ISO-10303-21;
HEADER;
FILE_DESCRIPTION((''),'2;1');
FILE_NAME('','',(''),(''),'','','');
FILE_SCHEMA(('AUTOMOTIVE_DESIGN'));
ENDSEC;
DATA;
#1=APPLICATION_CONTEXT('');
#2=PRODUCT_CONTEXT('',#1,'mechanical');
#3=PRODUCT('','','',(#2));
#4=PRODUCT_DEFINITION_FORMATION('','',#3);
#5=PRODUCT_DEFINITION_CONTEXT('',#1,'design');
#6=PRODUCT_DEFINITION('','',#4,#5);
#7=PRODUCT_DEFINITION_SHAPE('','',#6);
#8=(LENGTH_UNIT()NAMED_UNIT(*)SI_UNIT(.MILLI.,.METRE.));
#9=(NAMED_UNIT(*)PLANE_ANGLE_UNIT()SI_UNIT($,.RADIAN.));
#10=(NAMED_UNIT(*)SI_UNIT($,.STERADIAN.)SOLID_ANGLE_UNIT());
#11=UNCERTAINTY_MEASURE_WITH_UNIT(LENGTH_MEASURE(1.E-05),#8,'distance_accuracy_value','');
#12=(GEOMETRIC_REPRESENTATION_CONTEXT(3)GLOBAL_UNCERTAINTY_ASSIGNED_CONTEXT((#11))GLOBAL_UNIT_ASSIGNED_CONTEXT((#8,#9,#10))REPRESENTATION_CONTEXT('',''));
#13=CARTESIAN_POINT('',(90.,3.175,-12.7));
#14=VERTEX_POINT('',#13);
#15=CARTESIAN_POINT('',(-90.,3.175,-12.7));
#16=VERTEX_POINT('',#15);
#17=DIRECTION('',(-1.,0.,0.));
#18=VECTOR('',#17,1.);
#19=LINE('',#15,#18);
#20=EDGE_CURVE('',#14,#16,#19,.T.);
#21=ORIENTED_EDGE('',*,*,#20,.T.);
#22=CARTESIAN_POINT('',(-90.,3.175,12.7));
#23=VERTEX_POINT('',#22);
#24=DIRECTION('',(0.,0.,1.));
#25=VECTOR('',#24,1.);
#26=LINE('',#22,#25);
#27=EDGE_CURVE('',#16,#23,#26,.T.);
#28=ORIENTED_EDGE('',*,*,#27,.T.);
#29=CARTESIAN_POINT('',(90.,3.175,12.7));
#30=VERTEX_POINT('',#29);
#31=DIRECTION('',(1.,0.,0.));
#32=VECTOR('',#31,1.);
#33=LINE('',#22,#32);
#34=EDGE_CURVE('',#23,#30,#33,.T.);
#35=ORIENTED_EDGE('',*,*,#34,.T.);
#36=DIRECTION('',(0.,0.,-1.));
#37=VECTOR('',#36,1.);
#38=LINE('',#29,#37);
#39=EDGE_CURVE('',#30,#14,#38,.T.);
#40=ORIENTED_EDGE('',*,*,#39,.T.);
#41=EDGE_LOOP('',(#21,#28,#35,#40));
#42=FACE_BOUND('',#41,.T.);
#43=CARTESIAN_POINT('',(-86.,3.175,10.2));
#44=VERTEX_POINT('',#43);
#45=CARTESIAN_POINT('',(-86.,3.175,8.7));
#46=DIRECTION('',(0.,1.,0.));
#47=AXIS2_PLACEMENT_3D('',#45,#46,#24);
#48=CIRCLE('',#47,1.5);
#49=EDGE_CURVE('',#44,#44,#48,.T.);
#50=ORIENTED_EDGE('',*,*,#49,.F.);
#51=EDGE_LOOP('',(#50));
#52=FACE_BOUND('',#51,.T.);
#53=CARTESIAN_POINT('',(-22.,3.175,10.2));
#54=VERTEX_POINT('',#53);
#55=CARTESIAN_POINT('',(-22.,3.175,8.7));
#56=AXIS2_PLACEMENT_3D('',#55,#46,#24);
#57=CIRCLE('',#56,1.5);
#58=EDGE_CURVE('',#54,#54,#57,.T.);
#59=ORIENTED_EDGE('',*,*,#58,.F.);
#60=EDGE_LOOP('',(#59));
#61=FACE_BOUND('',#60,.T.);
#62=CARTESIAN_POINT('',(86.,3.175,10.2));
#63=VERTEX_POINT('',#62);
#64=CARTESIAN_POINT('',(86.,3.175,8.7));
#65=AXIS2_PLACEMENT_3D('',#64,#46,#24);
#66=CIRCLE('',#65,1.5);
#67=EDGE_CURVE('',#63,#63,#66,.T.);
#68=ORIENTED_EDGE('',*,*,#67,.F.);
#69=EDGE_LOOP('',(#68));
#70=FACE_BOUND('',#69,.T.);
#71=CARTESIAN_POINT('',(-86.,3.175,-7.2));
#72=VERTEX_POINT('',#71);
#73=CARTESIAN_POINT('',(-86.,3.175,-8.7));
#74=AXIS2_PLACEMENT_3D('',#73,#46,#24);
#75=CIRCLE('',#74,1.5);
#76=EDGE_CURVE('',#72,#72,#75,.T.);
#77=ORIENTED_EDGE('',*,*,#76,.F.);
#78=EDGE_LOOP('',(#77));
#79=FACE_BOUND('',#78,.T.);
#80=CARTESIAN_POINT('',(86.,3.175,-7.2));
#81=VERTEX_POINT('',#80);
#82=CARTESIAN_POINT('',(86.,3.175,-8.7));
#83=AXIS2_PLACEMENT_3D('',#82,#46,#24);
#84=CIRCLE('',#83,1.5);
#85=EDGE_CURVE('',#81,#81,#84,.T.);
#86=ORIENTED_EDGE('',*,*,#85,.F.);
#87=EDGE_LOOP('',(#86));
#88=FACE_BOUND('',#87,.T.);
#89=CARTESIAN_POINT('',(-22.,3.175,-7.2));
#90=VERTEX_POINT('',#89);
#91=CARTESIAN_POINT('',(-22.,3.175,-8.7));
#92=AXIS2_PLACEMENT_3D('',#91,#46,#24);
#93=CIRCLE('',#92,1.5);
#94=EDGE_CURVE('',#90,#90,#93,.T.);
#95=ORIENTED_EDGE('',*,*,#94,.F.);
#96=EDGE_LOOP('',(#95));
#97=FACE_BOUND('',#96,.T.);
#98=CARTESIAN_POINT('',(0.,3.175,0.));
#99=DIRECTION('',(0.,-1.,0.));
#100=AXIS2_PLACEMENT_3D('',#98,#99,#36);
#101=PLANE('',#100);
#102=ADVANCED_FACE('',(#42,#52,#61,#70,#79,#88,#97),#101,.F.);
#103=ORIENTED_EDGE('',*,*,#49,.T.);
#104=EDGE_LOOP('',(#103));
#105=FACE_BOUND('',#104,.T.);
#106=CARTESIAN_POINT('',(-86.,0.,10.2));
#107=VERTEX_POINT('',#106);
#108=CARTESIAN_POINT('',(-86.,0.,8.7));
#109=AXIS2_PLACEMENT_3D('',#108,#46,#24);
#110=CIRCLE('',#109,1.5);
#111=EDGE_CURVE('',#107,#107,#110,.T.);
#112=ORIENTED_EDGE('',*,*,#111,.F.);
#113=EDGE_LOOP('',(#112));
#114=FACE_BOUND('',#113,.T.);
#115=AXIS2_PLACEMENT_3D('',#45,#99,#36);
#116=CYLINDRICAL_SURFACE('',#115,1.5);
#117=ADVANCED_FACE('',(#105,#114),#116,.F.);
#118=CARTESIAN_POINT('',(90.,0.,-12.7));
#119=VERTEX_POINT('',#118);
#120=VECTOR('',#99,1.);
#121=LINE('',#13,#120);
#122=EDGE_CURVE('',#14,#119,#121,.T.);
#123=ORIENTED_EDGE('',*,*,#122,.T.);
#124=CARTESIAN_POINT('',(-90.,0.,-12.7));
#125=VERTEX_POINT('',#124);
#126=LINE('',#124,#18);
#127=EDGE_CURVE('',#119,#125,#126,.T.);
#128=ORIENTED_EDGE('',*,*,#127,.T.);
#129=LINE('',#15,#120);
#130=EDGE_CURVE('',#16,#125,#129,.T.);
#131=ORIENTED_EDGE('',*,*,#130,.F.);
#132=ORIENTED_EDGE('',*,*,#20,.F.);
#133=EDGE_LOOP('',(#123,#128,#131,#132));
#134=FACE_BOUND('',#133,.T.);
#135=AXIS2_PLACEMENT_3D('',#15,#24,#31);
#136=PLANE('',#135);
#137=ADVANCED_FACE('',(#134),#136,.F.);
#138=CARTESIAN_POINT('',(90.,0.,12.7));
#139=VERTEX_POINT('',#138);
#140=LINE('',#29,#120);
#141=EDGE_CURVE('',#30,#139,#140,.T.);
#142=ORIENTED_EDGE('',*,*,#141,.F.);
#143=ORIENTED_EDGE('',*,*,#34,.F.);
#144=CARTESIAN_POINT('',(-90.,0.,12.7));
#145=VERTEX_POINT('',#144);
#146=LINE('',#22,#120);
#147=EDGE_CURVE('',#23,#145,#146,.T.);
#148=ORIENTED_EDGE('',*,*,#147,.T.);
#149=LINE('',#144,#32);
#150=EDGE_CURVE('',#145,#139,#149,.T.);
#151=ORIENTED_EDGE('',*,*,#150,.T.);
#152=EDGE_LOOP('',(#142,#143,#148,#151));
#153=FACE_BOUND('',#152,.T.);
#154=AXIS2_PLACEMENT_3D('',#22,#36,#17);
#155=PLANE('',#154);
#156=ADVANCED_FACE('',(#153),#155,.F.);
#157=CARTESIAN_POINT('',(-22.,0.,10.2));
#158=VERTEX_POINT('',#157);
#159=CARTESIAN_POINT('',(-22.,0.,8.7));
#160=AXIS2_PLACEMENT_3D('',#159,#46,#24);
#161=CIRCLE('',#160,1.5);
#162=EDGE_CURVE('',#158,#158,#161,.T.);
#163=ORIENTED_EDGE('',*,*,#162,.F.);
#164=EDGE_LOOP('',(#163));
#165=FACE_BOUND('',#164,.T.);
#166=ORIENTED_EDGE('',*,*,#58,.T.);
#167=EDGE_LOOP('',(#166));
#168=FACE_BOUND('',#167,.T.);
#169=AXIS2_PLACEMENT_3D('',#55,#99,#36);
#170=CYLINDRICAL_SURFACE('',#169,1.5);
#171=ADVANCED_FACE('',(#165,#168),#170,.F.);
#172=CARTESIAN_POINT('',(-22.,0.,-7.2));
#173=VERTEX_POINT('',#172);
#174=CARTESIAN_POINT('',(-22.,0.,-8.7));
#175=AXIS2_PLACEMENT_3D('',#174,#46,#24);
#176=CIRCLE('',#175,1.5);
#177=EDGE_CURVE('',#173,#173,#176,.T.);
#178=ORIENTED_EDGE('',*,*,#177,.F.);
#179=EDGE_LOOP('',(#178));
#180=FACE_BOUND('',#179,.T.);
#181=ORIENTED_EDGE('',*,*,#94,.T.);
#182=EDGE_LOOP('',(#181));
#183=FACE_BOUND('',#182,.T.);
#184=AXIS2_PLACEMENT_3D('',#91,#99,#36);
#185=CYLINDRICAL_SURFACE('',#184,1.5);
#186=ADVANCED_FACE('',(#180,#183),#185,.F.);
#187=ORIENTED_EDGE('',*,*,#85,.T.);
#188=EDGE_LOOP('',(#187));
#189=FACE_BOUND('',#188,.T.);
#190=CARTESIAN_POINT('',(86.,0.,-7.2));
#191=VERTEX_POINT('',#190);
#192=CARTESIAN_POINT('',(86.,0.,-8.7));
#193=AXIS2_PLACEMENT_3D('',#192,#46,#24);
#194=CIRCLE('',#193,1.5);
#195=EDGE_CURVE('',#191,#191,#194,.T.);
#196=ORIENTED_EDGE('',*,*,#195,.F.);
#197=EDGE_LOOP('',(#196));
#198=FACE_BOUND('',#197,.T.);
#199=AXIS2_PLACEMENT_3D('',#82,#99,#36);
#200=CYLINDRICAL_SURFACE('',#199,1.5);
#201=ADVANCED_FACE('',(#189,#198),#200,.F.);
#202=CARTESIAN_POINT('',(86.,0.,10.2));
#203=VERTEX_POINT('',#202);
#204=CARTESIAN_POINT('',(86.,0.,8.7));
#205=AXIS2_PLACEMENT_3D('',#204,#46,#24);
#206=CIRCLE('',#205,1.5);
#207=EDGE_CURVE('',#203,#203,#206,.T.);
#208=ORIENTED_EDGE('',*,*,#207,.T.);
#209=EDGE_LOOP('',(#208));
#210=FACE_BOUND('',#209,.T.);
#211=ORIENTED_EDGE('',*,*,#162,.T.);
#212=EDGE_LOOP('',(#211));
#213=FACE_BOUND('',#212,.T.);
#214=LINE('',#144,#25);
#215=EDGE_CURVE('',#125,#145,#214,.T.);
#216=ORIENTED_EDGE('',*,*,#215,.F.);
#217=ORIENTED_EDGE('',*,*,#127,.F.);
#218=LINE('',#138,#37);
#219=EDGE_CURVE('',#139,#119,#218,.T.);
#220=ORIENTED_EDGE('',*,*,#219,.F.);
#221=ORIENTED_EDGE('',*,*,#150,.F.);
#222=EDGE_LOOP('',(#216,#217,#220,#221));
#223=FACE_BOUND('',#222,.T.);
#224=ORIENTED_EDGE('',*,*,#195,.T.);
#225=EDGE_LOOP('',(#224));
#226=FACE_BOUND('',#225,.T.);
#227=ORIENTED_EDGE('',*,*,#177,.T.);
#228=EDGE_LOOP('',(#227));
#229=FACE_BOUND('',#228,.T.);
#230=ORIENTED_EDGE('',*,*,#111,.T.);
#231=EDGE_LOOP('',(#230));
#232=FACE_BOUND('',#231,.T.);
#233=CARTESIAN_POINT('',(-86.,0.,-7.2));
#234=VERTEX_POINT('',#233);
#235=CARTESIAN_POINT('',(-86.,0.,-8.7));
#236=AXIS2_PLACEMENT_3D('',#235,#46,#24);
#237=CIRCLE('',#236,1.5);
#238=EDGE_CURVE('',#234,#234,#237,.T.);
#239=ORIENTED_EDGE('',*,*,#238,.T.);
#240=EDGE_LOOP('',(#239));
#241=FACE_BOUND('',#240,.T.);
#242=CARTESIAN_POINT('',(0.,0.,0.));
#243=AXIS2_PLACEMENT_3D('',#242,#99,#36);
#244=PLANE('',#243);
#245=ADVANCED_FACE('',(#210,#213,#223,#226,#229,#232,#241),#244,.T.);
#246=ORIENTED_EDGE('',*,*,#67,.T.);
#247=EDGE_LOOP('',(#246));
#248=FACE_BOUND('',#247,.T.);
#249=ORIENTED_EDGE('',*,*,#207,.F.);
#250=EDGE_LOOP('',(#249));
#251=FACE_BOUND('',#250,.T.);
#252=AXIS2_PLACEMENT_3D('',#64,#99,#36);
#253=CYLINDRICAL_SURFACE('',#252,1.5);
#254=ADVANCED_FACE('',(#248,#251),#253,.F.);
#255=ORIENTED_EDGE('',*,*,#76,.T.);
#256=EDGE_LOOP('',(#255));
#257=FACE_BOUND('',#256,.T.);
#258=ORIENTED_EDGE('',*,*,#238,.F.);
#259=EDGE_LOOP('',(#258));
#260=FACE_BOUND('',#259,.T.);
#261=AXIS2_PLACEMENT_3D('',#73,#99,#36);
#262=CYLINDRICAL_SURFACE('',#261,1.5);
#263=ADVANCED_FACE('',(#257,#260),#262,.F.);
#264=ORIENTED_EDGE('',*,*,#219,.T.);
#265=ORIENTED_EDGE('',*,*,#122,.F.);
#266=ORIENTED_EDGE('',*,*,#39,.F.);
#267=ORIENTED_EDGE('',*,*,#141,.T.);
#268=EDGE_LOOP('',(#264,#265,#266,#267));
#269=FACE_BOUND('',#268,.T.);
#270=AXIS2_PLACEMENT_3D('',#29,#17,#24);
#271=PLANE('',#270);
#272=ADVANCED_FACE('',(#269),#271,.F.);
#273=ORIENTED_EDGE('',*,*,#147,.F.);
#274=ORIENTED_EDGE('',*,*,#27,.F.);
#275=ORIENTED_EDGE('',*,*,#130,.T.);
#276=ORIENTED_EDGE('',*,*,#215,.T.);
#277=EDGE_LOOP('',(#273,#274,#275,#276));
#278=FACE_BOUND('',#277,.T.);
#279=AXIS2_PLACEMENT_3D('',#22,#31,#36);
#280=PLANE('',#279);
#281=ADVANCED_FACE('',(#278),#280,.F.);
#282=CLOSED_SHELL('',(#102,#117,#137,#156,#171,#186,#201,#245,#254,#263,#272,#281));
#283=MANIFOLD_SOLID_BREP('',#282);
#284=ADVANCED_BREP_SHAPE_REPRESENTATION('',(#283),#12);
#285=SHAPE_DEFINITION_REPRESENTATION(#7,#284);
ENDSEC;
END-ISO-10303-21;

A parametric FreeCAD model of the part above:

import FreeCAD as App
import Part
import Sketcher

V = App.Vector
Q = App.Units.Quantity

doc = App.newDocument("Part")
params = doc.addObject("Spreadsheet::Sheet", "Params")
for row, (alias, value) in enumerate([
    ("sketch1_diameter", "3 mm"),
    ("sketch1_width", "180 mm"),
    ("sketch1_height", "25.4 mm"),
    ("pad1_length", "3.175 mm"),
], start=1):
    params.set(f"A{row}", alias)
    params.set(f"B{row}", "=" + value)
    params.setAlias(f"B{row}", alias)

body = doc.addObject("PartDesign::Body", "Body")

sketch1 = body.newObject("Sketcher::SketchObject", "Sketch")
sketch1.AttachmentSupport = (doc.getObject("XZ_Plane"), [""])
sketch1.MapMode = "FlatFace"
sketch1.addGeometry(Part.LineSegment(V(-90, -12.7, 0), V(-90, 12.7, 0)), False)
sketch1.addGeometry(Part.LineSegment(V(-90, 12.7, 0), V(90, 12.7, 0)), False)
sketch1.addGeometry(Part.LineSegment(V(90, 12.7, 0), V(90, -12.7, 0)), False)
sketch1.addGeometry(Part.LineSegment(V(90, -12.7, 0), V(-90, -12.7, 0)), False)
sketch1.addGeometry(Part.Circle(V(-86, 8.7, 0), V(0, 0, 1), 1.5), False)
sketch1.addGeometry(Part.Circle(V(-22, 8.7, 0), V(0, 0, 1), 1.5), False)
sketch1.addGeometry(Part.Circle(V(86, 8.7, 0), V(0, 0, 1), 1.5), False)
sketch1.addGeometry(Part.Circle(V(-86, -8.7, 0), V(0, 0, 1), 1.5), False)
sketch1.addGeometry(Part.Circle(V(-22, -8.7, 0), V(0, 0, 1), 1.5), False)
sketch1.addGeometry(Part.Circle(V(86, -8.7, 0), V(0, 0, 1), 1.5), False)
sketch1.addConstraint(Sketcher.Constraint("Coincident", 0, 2, 1, 1))
sketch1.addConstraint(Sketcher.Constraint("Coincident", 1, 2, 2, 1))
sketch1.addConstraint(Sketcher.Constraint("Coincident", 2, 2, 3, 1))
sketch1.addConstraint(Sketcher.Constraint("Coincident", 3, 2, 0, 1))
sketch1.addConstraint(Sketcher.Constraint("Vertical", 0))
sketch1.addConstraint(Sketcher.Constraint("Horizontal", 1))
sketch1.addConstraint(Sketcher.Constraint("Vertical", 2))
sketch1.addConstraint(Sketcher.Constraint("Horizontal", 3))
sketch1.addConstraint(Sketcher.Constraint("Equal", 4, 5))
sketch1.addConstraint(Sketcher.Constraint("Equal", 5, 6))
sketch1.addConstraint(Sketcher.Constraint("Equal", 6, 7))
sketch1.addConstraint(Sketcher.Constraint("Equal", 7, 8))
sketch1.addConstraint(Sketcher.Constraint("Equal", 8, 9))
sketch1.addConstraint(Sketcher.Constraint("Symmetric", 6, 3, 7, 3, -1, 1))
sketch1.addConstraint(Sketcher.Constraint("Symmetric", 4, 3, 9, 3, -1, 1))
sketch1.addConstraint(Sketcher.Constraint("Symmetric", 0, 2, 2, 2, -1, 1))
sketch1.addConstraint(Sketcher.Constraint("Symmetric", 4, 3, 6, 3, -2))
sketch1.addConstraint(Sketcher.Constraint("Symmetric", 5, 3, 8, 3, -1))
sketch1.addConstraint(Sketcher.Constraint("Horizontal", 4, 3, 5, 3))
sketch1.addConstraint(Sketcher.Constraint("Diameter", 4, Q("3 mm")))
sketch1.addConstraint(Sketcher.Constraint("DistanceX", 1, 1, 1, 2, Q("180 mm")))
sketch1.addConstraint(Sketcher.Constraint("DistanceY", 0, 1, 0, 2, Q("25.4 mm")))
sketch1.addConstraint(Sketcher.Constraint("DistanceX", 4, 3, -1, 1, Q("86 mm")))
sketch1.addConstraint(Sketcher.Constraint("DistanceX", 5, 3, -1, 1, Q("22 mm")))
sketch1.addConstraint(Sketcher.Constraint("DistanceY", 4, 3, 0, 2, Q("4 mm")))
sketch1.setExpression("Constraints[19]", "Params.sketch1_diameter")
sketch1.setExpression("Constraints[20]", "Params.sketch1_width")
sketch1.setExpression("Constraints[21]", "Params.sketch1_height")
pad1 = body.newObject("PartDesign::Pad", "Pad")
pad1.Profile = sketch1
pad1.setExpression("Length", "Params.pad1_length")
pad1.Reversed = True

doc.recompute()
